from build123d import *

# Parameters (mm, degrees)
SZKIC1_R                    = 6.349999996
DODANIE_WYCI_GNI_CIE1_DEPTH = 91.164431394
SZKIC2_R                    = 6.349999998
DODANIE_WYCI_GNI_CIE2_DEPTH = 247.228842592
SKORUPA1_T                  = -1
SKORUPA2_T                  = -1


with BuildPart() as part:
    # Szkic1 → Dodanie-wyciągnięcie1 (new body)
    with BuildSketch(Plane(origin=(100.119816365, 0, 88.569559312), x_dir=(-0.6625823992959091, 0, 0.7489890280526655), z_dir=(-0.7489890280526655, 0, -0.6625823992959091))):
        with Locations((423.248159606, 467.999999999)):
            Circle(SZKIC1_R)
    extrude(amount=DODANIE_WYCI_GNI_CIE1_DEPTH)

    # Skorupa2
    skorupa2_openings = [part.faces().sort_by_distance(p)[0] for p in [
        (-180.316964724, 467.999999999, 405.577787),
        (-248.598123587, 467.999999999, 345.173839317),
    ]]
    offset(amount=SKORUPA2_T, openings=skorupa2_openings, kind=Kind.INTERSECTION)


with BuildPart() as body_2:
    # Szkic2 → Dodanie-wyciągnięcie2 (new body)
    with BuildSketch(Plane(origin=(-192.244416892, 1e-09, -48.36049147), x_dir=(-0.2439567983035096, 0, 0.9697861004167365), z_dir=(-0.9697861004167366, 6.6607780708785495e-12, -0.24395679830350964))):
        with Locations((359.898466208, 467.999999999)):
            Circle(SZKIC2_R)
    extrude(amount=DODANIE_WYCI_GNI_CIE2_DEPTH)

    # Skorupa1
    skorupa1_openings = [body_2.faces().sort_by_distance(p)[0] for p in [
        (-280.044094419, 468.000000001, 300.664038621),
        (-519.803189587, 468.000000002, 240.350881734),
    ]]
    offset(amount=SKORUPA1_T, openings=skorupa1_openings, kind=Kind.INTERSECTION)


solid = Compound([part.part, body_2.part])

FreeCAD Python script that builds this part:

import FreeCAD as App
import Part
import Sketcher
from FreeCAD import Vector


def faces_at(feature, points):
    """Names of the faces that lie closest to the given points."""
    faces = feature.Shape.Faces
    near = lambda p: min(range(len(faces)), key=lambda i: faces[i].distToShape(Part.Vertex(*p))[0])
    return sorted({f"Face{near(p) + 1}" for p in points})

doc = App.newDocument("Part")
body = doc.addObject("PartDesign::Body", "Body")

# Sketch on an angled plane
sketch1 = doc.addObject("Sketcher::SketchObject", "Sketch")
body.addObject(sketch1)
sketch1.Placement = App.Placement(Vector(100.119816, 0, 88.569559), App.Rotation(Vector(-0.662582399, 0, 0.748989028), Vector(0, 1, 0), Vector(-0.748989028, 0, -0.662582399), "ZXY"))
sketch1.addGeometry(Part.Circle(Vector(423, 468, 0), Vector(0, 0, 1), 6), False)
sketch1.addConstraint([
    Sketcher.Constraint("Diameter", 0, 12.7),
    Sketcher.Constraint("DistanceY", -1, 1, 0, 3, 468.0),
    Sketcher.Constraint("DistanceX", -1, 1, 0, 3, 423.248159),
])
pad1 = doc.addObject("PartDesign::Pad", "Pad")
body.addObject(pad1)
pad1.Profile = sketch1
pad1.Length = 91.164431
doc.recompute()

thickness = doc.addObject("PartDesign::Thickness", "Thickness")
body.addObject(thickness)
thickness.Base = (pad1, faces_at(pad1, [(-180.317, 468, 405.578), (-248.598, 468, 345.174)]))
thickness.Value = 1
thickness.Reversed = True
thickness.Join = "Intersection"
body2 = doc.addObject("PartDesign::Body", "Body001")

# Sketch on an angled plane
sketch2 = doc.addObject("Sketcher::SketchObject", "Sketch001")
body2.addObject(sketch2)
sketch2.Placement = App.Placement(Vector(-192.244417, 0, -48.360491), App.Rotation(Vector(-0.243956798, 0, 0.9697861), Vector(0, 0.999999999, 0), Vector(-0.9697861, 0, -0.243956798), "ZXY"))
sketch2.addGeometry(Part.Circle(Vector(360, 468, 0), Vector(0, 0, 1), 6), False)
sketch2.addConstraint([
    Sketcher.Constraint("Diameter", 0, 12.7),
    Sketcher.Constraint("DistanceY", -1, 1, 0, 3, 467.999999),
    Sketcher.Constraint("DistanceX", -1, 1, 0, 3, 359.898466),
])
pad2 = doc.addObject("PartDesign::Pad", "Pad001")
body2.addObject(pad2)
pad2.Profile = sketch2
pad2.Length = 247.228843
doc.recompute()

thickness2 = doc.addObject("PartDesign::Thickness", "Thickness001")
body2.addObject(thickness2)
thickness2.Base = (pad2, faces_at(pad2, [(-280.044, 468, 300.664), (-519.803, 468, 240.351)]))
thickness2.Value = 1
thickness2.Reversed = True
thickness2.Join = "Intersection"

doc.recompute()
